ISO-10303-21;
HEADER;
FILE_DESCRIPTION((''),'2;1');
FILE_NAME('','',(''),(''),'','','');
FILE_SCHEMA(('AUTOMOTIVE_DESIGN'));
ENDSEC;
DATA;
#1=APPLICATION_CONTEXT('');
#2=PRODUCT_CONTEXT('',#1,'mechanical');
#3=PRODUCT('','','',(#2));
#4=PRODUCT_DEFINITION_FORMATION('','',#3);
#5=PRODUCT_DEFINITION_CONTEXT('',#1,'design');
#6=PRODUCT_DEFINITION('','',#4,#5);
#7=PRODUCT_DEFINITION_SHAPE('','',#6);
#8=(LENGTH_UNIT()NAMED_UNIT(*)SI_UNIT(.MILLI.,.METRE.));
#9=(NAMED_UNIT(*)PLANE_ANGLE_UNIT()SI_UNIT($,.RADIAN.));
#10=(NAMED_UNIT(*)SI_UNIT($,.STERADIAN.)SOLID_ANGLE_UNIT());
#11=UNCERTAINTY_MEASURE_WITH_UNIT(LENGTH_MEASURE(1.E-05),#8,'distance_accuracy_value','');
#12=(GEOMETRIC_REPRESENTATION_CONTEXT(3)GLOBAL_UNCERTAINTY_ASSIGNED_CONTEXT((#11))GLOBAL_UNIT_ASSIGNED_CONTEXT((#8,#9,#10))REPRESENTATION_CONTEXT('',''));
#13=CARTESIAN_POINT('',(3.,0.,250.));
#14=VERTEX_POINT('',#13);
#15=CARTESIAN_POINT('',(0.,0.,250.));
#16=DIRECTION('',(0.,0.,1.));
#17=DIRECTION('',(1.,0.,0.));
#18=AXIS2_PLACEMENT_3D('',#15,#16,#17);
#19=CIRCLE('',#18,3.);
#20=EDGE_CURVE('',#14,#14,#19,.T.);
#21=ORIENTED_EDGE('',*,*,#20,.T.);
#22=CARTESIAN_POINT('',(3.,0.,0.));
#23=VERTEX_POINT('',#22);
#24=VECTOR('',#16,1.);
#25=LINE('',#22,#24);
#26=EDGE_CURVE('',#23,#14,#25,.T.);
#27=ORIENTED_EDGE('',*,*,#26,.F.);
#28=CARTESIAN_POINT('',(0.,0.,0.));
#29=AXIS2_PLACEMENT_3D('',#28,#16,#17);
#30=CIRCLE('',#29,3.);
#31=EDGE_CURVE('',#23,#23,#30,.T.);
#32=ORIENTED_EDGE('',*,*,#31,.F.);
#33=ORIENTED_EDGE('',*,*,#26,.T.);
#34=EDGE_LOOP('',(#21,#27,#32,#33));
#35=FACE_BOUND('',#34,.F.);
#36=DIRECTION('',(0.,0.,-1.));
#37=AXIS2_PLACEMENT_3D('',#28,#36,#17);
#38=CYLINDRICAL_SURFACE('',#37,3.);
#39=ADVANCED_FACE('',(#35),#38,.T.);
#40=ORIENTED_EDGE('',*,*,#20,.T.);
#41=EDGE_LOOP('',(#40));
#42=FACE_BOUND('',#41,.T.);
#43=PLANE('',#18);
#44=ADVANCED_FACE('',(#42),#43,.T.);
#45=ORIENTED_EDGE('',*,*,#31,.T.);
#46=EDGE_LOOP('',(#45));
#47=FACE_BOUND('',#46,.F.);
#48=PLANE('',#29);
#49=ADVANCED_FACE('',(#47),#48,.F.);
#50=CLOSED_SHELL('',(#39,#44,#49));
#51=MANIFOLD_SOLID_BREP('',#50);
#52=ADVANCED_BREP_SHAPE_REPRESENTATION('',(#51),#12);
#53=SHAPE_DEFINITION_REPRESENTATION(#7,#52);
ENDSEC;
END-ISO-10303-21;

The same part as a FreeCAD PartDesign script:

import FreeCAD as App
import Part
import Sketcher

V = App.Vector
Q = App.Units.Quantity

doc = App.newDocument("Part")
body = doc.addObject("PartDesign::Body", "Body")

sketch1 = body.newObject("Sketcher::SketchObject", "Sketch")
sketch1.AttachmentSupport = (doc.getObject("XY_Plane"), [""])
sketch1.MapMode = "FlatFace"
sketch1.addGeometry(Part.Circle(V(0, 0, 0), V(0, 0, 1), 3), False)
sketch1.addConstraint([
    Sketcher.Constraint("Coincident", 0, 3, -1, 1),
    Sketcher.Constraint("Diameter", 0, Q("6 mm")),
])
pad1 = body.newObject("PartDesign::Pad", "Pad")
pad1.Profile = sketch1
pad1.Length = 250

doc.recompute()
